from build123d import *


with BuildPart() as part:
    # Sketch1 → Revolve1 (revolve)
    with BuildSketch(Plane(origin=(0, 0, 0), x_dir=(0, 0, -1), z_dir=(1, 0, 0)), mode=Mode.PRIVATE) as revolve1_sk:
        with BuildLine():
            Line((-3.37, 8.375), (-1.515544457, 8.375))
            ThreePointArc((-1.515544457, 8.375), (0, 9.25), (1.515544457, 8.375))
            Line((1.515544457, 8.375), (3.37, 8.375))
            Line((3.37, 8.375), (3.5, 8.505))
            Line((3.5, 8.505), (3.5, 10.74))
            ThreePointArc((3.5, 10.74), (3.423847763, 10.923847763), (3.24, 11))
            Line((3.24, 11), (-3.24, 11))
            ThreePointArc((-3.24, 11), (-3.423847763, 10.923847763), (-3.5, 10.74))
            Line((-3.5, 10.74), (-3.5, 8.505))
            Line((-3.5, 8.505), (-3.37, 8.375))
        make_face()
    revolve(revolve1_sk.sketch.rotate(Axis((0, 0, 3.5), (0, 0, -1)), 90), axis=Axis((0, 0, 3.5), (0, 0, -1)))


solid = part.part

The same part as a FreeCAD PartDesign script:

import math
import FreeCAD as App
import Part
import Sketcher

V = App.Vector
Q = App.Units.Quantity

doc = App.newDocument("Part")
body = doc.addObject("PartDesign::Body", "Body")

# Sketch on YZ plane
sketch1 = doc.addObject("Sketcher::SketchObject", "Sketch")
body.addObject(sketch1)
sketch1.AttachmentSupport = (doc.YZ_Plane, [""])
sketch1.MapMode = "FlatFace"
sketch1.addGeometry([
    Part.LineSegment(V(8.38, 3.37, 0), V(8.38, 1.52, 0)),  # 0
    Part.ArcOfCircle(Part.Circle(V(7.5, 0, 0), V(0, 0, 1), 1.75), math.radians(-60), math.radians(60)),  # 1
    Part.LineSegment(V(8.38, -1.52, 0), V(8.38, -3.37, 0)),  # 2
    Part.LineSegment(V(8.38, -3.37, 0), V(8.51, -3.5, 0)),  # 3
    Part.LineSegment(V(8.51, -3.5, 0), V(10.74, -3.5, 0)),  # 4
    Part.ArcOfCircle(Part.Circle(V(10.74, -3.24, 0), V(0, 0, 1), 0.26), math.radians(-90), math.radians(0)),  # 5
    Part.LineSegment(V(11, -3.24, 0), V(11, 3.24, 0)),  # 6
    Part.ArcOfCircle(Part.Circle(V(10.74, 3.24, 0), V(0, 0, 1), 0.26), math.radians(0), math.radians(90)),  # 7
    Part.LineSegment(V(10.74, 3.5, 0), V(8.51, 3.5, 0)),  # 8
    Part.LineSegment(V(8.51, 3.5, 0), V(8.38, 3.37, 0)),  # 9
], False)
sketch1.addConstraint([
    Sketcher.Constraint("Coincident", 0, 2, 1, 2),
    Sketcher.Constraint("Coincident", 1, 1, 2, 1),
    Sketcher.Constraint("Coincident", 2, 2, 3, 1),
    Sketcher.Constraint("Coincident", 3, 2, 4, 1),
    Sketcher.Constraint("Tangent", 4, 2, 5, 1),
    Sketcher.Constraint("Tangent", 5, 2, 6, 1),
    Sketcher.Constraint("Tangent", 6, 2, 7, 1),
    Sketcher.Constraint("Tangent", 7, 2, 8, 1),
    Sketcher.Constraint("Coincident", 8, 2, 9, 1),
    Sketcher.Constraint("Coincident", 9, 2, 0, 1),
    Sketcher.Constraint("Vertical", 0),
    Sketcher.Constraint("Vertical", 2),
    Sketcher.Constraint("Horizontal", 4),
    Sketcher.Constraint("Vertical", 6),
    Sketcher.Constraint("Horizontal", 8),
    Sketcher.Constraint("Equal", 5, 7),
    Sketcher.Constraint("Symmetric", 0, 2, 1, 1, -1),
    Sketcher.Constraint("Symmetric", 3, 2, 8, 2, -1),
    Sketcher.Constraint("Perpendicular", 3, 9),
    Sketcher.Constraint("Equal", 0, 2),
    Sketcher.Constraint("Radius", 1, Q("1.75 mm")),
    Sketcher.Constraint("Radius", 5, Q("0.26 mm")),
    Sketcher.Constraint("DistanceX", -1, 1, 5, 2, Q("11 mm")),
    Sketcher.Constraint("DistanceY", 6, 1, 6, 2, Q("6.48 mm")),
    Sketcher.Constraint("DistanceX", -1, 1, 1, 3, Q("7.5 mm")),
    Sketcher.Constraint("DistanceX", 4, 1, 4, 2, Q("2.235 mm")),
    Sketcher.Constraint("DistanceY", 2, 2, -1, 1, Q("3.37 mm")),
])
revolution = doc.addObject("PartDesign::Revolution", "Revolution")
body.addObject(revolution)
revolution.Profile = sketch1
revolution.ReferenceAxis = (sketch1, ["V_Axis"])
revolution.Angle = 360

doc.recompute()
